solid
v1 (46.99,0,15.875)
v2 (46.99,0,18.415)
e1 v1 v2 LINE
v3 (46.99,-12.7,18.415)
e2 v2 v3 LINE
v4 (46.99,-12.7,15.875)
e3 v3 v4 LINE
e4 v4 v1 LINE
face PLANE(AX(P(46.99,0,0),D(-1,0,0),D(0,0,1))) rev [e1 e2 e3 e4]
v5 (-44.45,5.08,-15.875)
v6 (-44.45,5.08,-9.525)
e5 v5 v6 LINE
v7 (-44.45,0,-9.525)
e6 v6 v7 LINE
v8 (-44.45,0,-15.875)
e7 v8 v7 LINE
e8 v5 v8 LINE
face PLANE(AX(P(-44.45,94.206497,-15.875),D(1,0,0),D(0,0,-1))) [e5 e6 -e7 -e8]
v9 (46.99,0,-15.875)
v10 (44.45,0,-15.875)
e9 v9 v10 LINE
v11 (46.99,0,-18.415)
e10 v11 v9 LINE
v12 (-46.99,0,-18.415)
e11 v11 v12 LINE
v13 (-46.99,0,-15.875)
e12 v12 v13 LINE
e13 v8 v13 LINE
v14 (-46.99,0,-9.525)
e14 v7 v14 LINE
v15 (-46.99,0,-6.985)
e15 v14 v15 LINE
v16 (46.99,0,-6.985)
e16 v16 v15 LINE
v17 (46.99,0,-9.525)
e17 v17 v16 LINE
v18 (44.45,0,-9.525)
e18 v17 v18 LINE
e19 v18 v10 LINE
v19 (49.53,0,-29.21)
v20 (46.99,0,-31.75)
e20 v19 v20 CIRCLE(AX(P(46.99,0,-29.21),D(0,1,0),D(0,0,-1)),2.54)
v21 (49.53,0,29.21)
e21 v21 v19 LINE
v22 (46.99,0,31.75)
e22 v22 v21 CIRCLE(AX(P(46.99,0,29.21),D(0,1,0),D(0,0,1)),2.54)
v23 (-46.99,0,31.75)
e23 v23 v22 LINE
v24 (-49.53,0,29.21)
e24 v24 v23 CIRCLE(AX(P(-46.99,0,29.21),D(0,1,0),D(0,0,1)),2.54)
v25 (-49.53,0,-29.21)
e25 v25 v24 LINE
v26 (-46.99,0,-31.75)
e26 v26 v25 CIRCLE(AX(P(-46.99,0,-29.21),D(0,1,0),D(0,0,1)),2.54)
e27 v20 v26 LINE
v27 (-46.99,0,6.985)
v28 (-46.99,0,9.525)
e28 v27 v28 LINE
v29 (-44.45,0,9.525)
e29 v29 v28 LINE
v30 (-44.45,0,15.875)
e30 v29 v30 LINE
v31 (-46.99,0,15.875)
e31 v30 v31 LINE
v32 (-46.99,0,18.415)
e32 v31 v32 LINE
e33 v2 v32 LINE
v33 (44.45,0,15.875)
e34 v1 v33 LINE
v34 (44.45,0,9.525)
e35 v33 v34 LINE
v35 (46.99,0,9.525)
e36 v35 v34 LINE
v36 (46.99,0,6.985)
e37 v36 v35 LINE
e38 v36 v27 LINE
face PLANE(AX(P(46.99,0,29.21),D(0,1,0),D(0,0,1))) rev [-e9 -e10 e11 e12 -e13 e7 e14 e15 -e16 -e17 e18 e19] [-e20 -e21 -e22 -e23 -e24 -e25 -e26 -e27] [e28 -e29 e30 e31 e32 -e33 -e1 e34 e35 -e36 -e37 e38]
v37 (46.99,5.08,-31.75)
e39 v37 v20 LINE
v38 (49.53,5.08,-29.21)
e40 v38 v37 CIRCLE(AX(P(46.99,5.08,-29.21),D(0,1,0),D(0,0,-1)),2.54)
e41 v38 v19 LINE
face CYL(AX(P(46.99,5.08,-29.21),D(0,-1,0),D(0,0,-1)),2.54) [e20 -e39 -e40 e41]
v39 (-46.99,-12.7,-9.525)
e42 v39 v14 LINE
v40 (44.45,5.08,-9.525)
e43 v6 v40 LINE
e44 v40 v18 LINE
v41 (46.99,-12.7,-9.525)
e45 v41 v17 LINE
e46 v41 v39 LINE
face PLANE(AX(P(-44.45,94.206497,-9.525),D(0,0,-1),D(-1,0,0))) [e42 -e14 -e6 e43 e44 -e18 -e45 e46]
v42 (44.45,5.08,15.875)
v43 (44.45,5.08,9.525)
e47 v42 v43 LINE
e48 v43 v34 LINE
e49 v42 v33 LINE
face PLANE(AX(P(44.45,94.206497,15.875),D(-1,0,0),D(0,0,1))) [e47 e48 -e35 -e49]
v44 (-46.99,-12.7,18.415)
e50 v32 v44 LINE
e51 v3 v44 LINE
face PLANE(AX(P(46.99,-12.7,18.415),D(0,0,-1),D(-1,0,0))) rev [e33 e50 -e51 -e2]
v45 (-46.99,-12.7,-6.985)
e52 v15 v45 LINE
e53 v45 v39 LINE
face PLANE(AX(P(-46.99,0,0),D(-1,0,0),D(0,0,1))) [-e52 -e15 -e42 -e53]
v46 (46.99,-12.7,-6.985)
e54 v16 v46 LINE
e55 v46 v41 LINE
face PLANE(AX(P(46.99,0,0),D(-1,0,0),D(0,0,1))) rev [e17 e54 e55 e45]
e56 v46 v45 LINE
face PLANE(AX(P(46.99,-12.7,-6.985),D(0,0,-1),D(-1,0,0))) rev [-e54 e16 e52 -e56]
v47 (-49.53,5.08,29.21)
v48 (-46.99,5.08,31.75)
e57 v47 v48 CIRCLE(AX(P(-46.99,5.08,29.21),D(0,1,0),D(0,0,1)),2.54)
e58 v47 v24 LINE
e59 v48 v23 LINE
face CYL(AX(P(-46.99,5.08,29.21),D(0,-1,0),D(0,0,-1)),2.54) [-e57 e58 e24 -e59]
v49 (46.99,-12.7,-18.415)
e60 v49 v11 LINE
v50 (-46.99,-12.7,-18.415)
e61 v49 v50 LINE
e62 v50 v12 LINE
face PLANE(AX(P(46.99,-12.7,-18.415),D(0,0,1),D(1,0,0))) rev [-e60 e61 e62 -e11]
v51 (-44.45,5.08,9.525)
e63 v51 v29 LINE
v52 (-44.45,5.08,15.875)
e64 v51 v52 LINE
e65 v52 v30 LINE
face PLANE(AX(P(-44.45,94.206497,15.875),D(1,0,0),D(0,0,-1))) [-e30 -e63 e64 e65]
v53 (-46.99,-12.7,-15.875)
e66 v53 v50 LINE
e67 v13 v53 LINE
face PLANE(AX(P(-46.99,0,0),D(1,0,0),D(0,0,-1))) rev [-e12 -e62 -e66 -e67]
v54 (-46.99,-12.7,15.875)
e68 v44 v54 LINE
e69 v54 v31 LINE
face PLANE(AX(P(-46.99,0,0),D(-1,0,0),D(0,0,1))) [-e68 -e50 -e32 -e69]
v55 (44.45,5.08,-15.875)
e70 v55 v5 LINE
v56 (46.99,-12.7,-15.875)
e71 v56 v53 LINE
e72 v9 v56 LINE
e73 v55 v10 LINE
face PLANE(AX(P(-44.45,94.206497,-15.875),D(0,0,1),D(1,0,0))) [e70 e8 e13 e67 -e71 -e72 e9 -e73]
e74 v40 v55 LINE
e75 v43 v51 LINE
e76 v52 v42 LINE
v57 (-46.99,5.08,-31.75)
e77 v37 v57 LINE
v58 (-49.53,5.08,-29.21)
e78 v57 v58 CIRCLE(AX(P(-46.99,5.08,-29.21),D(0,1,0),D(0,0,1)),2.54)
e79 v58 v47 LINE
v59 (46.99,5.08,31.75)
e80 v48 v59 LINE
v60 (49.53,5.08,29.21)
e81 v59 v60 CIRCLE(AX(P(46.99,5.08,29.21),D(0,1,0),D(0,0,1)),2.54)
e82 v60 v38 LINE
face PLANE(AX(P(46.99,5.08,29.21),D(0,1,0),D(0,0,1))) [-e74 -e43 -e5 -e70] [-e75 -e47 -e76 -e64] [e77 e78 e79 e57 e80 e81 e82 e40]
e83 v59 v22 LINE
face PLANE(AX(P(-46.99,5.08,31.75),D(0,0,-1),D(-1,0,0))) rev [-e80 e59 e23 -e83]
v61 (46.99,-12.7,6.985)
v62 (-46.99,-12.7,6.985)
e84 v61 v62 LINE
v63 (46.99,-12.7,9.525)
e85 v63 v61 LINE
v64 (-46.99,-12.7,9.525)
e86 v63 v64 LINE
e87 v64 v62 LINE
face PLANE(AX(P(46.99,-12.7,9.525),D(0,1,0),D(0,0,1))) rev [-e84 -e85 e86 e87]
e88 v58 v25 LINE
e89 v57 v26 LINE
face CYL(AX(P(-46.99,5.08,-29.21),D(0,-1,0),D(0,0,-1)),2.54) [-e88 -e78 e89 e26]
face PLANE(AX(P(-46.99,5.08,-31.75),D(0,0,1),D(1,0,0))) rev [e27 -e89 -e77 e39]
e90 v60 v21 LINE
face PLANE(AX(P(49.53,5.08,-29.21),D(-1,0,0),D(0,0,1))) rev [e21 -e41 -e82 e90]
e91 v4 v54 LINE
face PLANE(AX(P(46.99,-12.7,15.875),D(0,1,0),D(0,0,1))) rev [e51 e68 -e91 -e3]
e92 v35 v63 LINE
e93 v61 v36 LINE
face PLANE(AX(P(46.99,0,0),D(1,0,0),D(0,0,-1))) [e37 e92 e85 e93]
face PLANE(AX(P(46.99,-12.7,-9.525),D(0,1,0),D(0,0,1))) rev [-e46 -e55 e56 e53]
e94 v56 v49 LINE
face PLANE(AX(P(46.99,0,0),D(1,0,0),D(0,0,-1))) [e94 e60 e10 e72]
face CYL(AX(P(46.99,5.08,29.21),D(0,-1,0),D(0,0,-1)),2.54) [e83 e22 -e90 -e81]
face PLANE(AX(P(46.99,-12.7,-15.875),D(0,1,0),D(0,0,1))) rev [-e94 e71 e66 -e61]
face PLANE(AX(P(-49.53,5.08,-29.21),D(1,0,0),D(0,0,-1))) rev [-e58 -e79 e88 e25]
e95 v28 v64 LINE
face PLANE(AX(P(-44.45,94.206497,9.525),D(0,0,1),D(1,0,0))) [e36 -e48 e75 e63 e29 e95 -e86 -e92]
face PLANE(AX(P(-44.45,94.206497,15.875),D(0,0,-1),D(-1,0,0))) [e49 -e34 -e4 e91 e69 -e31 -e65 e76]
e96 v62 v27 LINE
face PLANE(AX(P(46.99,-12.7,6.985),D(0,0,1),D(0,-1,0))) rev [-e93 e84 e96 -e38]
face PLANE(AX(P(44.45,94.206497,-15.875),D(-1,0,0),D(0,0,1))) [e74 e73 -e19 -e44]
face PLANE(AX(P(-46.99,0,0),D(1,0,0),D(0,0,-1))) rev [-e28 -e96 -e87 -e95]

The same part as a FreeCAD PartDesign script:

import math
import FreeCAD as App
import Part
import Sketcher
Q = App.Units.Quantity

doc = App.newDocument("Part")
body = doc.addObject("PartDesign::Body", "Body")

sketch1 = doc.addObject("Sketcher::SketchObject", "Sketch")
body.addObject(sketch1)
sketch1.AttachmentSupport = (doc.XZ_Plane, [""])
sketch1.MapMode = "FlatFace"
sketch1.addGeometry([
    Part.LineSegment(App.Vector(47, -31.8, 0), App.Vector(-47, -31.8, 0)),
    Part.ArcOfCircle(Part.Circle(App.Vector(-47, -29.2, 0), App.Vector(0, 0, 1), 2.5), math.radians(-180), math.radians(-90)),
    Part.LineSegment(App.Vector(-49.5, -29.2, 0), App.Vector(-49.5, 29.2, 0)),
    Part.ArcOfCircle(Part.Circle(App.Vector(-47, 29.2, 0), App.Vector(0, 0, 1), 2.5), math.radians(90), math.radians(180)),
    Part.LineSegment(App.Vector(-47, 31.8, 0), App.Vector(47, 31.8, 0)),
    Part.ArcOfCircle(Part.Circle(App.Vector(47, 29.2, 0), App.Vector(0, 0, 1), 2.5), math.radians(0), math.radians(90)),
    Part.LineSegment(App.Vector(49.5, 29.2, 0), App.Vector(49.5, -29.2, 0)),
    Part.ArcOfCircle(Part.Circle(App.Vector(47, -29.2, 0), App.Vector(0, 0, 1), 2.5), math.radians(-90), math.radians(0)),
], False)
sketch1.addConstraint([
    Sketcher.Constraint("Tangent", 0, 2, 1, 2),
    Sketcher.Constraint("Tangent", 1, 1, 2, 1),
    Sketcher.Constraint("Tangent", 2, 2, 3, 2),
    Sketcher.Constraint("Tangent", 3, 1, 4, 1),
    Sketcher.Constraint("Tangent", 4, 2, 5, 2),
    Sketcher.Constraint("Tangent", 5, 1, 6, 1),
    Sketcher.Constraint("Tangent", 6, 2, 7, 2),
    Sketcher.Constraint("Tangent", 7, 1, 0, 1),
    Sketcher.Constraint("Horizontal", 0),
    Sketcher.Constraint("Vertical", 2),
    Sketcher.Constraint("Horizontal", 4),
    Sketcher.Constraint("Vertical", 6),
    Sketcher.Constraint("Equal", 1, 3),
    Sketcher.Constraint("Equal", 3, 5),
    Sketcher.Constraint("Equal", 5, 7),
    Sketcher.Constraint("Symmetric", 1, 3, 5, 3, -1, 1),
    Sketcher.Constraint("Radius", 1, Q("0.1 in")),
    Sketcher.Constraint("DistanceX", 0, 2, 0, 1, Q("3.7 in")),
    Sketcher.Constraint("DistanceY", 2, 1, 2, 2, Q("2.3 in")),
])
pad1 = doc.addObject("PartDesign::Pad", "Pad")
body.addObject(pad1)
pad1.Profile = sketch1
pad1.Length = Q("0.2 in")
pad1.Reversed = True

sketch2 = doc.addObject("Sketcher::SketchObject", "Sketch001")
body.addObject(sketch2)
sketch2.AttachmentSupport = (doc.XZ_Plane, [""])
sketch2.MapMode = "FlatFace"
sketch2.addGeometry([
    Part.LineSegment(App.Vector(-44, -16, 0), App.Vector(-44, -10, 0)),
    Part.LineSegment(App.Vector(-44, -10, 0), App.Vector(44, -10, 0)),
    Part.LineSegment(App.Vector(44, -10, 0), App.Vector(44, -16, 0)),
    Part.LineSegment(App.Vector(44, -16, 0), App.Vector(-44, -16, 0)),
    Part.LineSegment(App.Vector(-44, 10, 0), App.Vector(-44, 16, 0)),
    Part.LineSegment(App.Vector(-44, 16, 0), App.Vector(44, 16, 0)),
    Part.LineSegment(App.Vector(44, 16, 0), App.Vector(44, 10, 0)),
    Part.LineSegment(App.Vector(44, 10, 0), App.Vector(-44, 10, 0)),
], False)
sketch2.addConstraint([
    Sketcher.Constraint("Coincident", 0, 2, 1, 1),
    Sketcher.Constraint("Coincident", 1, 2, 2, 1),
    Sketcher.Constraint("Coincident", 2, 2, 3, 1),
    Sketcher.Constraint("Coincident", 3, 2, 0, 1),
    Sketcher.Constraint("Coincident", 4, 2, 5, 1),
    Sketcher.Constraint("Coincident", 5, 2, 6, 1),
    Sketcher.Constraint("Coincident", 6, 2, 7, 1),
    Sketcher.Constraint("Coincident", 7, 2, 4, 1),
    Sketcher.Constraint("Vertical", 0),
    Sketcher.Constraint("Horizontal", 1),
    Sketcher.Constraint("Vertical", 2),
    Sketcher.Constraint("Horizontal", 3),
    Sketcher.Constraint("Vertical", 4),
    Sketcher.Constraint("Horizontal", 5),
    Sketcher.Constraint("Vertical", 6),
    Sketcher.Constraint("Horizontal", 7),
    Sketcher.Constraint("Symmetric", 2, 2, 4, 2, -1, 1),
    Sketcher.Constraint("Symmetric", 0, 2, 6, 2, -1, 1),
    Sketcher.Constraint("Vertical", 3, 2, 4, 2),
    Sketcher.Constraint("DistanceX", 1, 1, 1, 2, Q("3.5 in")),
    Sketcher.Constraint("DistanceY", 0, 2, 4, 2, Q("1 in")),
    Sketcher.Constraint("DistanceY", 0, 1, 0, 2, Q("0.25 in")),
])
pocket1 = doc.addObject("PartDesign::Pocket", "Pocket")
body.addObject(pocket1)
pocket1.Profile = sketch2
pocket1.Length = Q("0.2 in")

sketch3 = doc.addObject("Sketcher::SketchObject", "Sketch002")
body.addObject(sketch3)
sketch3.AttachmentSupport = (doc.YZ_Plane, [""])
sketch3.MapMode = "FlatFace"
sketch3.addGeometry([
    Part.LineSegment(App.Vector(0, 18.4, 0), App.Vector(-12.7, 18.4, 0)),
    Part.LineSegment(App.Vector(-12.7, 18.4, 0), App.Vector(-12.7, 15.9, 0)),
    Part.LineSegment(App.Vector(-12.7, 15.9, 0), App.Vector(0, 15.9, 0)),
    Part.LineSegment(App.Vector(0, 15.9, 0), App.Vector(0, 18.4, 0)),
    Part.LineSegment(App.Vector(0, 9.5, 0), App.Vector(-12.7, 9.5, 0)),
    Part.LineSegment(App.Vector(-12.7, 9.5, 0), App.Vector(-12.7, 7, 0)),
    Part.LineSegment(App.Vector(-12.7, 7, 0), App.Vector(0, 7, 0)),
    Part.LineSegment(App.Vector(0, 7, 0), App.Vector(0, 9.5, 0)),
    Part.LineSegment(App.Vector(0, -7, 0), App.Vector(-12.7, -7, 0)),
    Part.LineSegment(App.Vector(-12.7, -7, 0), App.Vector(-12.7, -9.5, 0)),
    Part.LineSegment(App.Vector(-12.7, -9.5, 0), App.Vector(0, -9.5, 0)),
    Part.LineSegment(App.Vector(0, -9.5, 0), App.Vector(0, -7, 0)),
    Part.LineSegment(App.Vector(0, -15.9, 0), App.Vector(-12.7, -15.9, 0)),
    Part.LineSegment(App.Vector(-12.7, -15.9, 0), App.Vector(-12.7, -18.4, 0)),
    Part.LineSegment(App.Vector(-12.7, -18.4, 0), App.Vector(0, -18.4, 0)),
    Part.LineSegment(App.Vector(0, -18.4, 0), App.Vector(0, -15.9, 0)),
], False)
sketch3.addConstraint([
    Sketcher.Constraint("Coincident", 0, 2, 1, 1),
    Sketcher.Constraint("Coincident", 1, 2, 2, 1),
    Sketcher.Constraint("Coincident", 2, 2, 3, 1),
    Sketcher.Constraint("Coincident", 3, 2, 0, 1),
    Sketcher.Constraint("Coincident", 4, 2, 5, 1),
    Sketcher.Constraint("Coincident", 5, 2, 6, 1),
    Sketcher.Constraint("Coincident", 6, 2, 7, 1),
    Sketcher.Constraint("Coincident", 7, 2, 4, 1),
    Sketcher.Constraint("Coincident", 8, 2, 9, 1),
    Sketcher.Constraint("Coincident", 9, 2, 10, 1),
    Sketcher.Constraint("Coincident", 10, 2, 11, 1),
    Sketcher.Constraint("Coincident", 11, 2, 8, 1),
    Sketcher.Constraint("Coincident", 12, 2, 13, 1),
    Sketcher.Constraint("Coincident", 13, 2, 14, 1),
    Sketcher.Constraint("Coincident", 14, 2, 15, 1),
    Sketcher.Constraint("Coincident", 15, 2, 12, 1),
    Sketcher.Constraint("Horizontal", 0),
    Sketcher.Constraint("Vertical", 1),
    Sketcher.Constraint("Horizontal", 2),
    Sketcher.Constraint("Vertical", 3),
    Sketcher.Constraint("Horizontal", 4),
    Sketcher.Constraint("Vertical", 5),
    Sketcher.Constraint("Horizontal", 6),
    Sketcher.Constraint("Vertical", 7),
    Sketcher.Constraint("Horizontal", 8),
    Sketcher.Constraint("Vertical", 9),
    Sketcher.Constraint("Horizontal", 10),
    Sketcher.Constraint("Vertical", 11),
    Sketcher.Constraint("Horizontal", 12),
    Sketcher.Constraint("Vertical", 13),
    Sketcher.Constraint("Horizontal", 14),
    Sketcher.Constraint("Vertical", 15),
    Sketcher.Constraint("Symmetric", 7, 2, 10, 2, -1, 1),
    Sketcher.Constraint("Symmetric", 3, 2, 14, 2, -1, 1),
    Sketcher.Constraint("Symmetric", 5, 2, 8, 2, -1),
    Sketcher.Constraint("Symmetric", 1, 2, 12, 2, -1),
    Sketcher.Constraint("PointOnObject", 2, 2, -2),
    Sketcher.Constraint("PointOnObject", 6, 2, -2),
    Sketcher.Constraint("Vertical", 1, 2, 4, 2),
    Sketcher.Constraint("Equal", 3, 5),
    Sketcher.Constraint("DistanceX", 0, 2, 0, 1, Q("0.5 in")),
    Sketcher.Constraint("DistanceY", 1, 2, 1, 1, Q("0.1 in")),
    Sketcher.Constraint("DistanceY", 8, 2, 1, 2, Q("0.9 in")),
    Sketcher.Constraint("DistanceY", 4, 2, 1, 2, Q("0.25 in")),
])
pad2 = doc.addObject("PartDesign::Pad", "Pad001")
body.addObject(pad2)
pad2.Profile = sketch3
pad2.Length = Q("3.7 in")
pad2.Midplane = True

doc.recompute()
